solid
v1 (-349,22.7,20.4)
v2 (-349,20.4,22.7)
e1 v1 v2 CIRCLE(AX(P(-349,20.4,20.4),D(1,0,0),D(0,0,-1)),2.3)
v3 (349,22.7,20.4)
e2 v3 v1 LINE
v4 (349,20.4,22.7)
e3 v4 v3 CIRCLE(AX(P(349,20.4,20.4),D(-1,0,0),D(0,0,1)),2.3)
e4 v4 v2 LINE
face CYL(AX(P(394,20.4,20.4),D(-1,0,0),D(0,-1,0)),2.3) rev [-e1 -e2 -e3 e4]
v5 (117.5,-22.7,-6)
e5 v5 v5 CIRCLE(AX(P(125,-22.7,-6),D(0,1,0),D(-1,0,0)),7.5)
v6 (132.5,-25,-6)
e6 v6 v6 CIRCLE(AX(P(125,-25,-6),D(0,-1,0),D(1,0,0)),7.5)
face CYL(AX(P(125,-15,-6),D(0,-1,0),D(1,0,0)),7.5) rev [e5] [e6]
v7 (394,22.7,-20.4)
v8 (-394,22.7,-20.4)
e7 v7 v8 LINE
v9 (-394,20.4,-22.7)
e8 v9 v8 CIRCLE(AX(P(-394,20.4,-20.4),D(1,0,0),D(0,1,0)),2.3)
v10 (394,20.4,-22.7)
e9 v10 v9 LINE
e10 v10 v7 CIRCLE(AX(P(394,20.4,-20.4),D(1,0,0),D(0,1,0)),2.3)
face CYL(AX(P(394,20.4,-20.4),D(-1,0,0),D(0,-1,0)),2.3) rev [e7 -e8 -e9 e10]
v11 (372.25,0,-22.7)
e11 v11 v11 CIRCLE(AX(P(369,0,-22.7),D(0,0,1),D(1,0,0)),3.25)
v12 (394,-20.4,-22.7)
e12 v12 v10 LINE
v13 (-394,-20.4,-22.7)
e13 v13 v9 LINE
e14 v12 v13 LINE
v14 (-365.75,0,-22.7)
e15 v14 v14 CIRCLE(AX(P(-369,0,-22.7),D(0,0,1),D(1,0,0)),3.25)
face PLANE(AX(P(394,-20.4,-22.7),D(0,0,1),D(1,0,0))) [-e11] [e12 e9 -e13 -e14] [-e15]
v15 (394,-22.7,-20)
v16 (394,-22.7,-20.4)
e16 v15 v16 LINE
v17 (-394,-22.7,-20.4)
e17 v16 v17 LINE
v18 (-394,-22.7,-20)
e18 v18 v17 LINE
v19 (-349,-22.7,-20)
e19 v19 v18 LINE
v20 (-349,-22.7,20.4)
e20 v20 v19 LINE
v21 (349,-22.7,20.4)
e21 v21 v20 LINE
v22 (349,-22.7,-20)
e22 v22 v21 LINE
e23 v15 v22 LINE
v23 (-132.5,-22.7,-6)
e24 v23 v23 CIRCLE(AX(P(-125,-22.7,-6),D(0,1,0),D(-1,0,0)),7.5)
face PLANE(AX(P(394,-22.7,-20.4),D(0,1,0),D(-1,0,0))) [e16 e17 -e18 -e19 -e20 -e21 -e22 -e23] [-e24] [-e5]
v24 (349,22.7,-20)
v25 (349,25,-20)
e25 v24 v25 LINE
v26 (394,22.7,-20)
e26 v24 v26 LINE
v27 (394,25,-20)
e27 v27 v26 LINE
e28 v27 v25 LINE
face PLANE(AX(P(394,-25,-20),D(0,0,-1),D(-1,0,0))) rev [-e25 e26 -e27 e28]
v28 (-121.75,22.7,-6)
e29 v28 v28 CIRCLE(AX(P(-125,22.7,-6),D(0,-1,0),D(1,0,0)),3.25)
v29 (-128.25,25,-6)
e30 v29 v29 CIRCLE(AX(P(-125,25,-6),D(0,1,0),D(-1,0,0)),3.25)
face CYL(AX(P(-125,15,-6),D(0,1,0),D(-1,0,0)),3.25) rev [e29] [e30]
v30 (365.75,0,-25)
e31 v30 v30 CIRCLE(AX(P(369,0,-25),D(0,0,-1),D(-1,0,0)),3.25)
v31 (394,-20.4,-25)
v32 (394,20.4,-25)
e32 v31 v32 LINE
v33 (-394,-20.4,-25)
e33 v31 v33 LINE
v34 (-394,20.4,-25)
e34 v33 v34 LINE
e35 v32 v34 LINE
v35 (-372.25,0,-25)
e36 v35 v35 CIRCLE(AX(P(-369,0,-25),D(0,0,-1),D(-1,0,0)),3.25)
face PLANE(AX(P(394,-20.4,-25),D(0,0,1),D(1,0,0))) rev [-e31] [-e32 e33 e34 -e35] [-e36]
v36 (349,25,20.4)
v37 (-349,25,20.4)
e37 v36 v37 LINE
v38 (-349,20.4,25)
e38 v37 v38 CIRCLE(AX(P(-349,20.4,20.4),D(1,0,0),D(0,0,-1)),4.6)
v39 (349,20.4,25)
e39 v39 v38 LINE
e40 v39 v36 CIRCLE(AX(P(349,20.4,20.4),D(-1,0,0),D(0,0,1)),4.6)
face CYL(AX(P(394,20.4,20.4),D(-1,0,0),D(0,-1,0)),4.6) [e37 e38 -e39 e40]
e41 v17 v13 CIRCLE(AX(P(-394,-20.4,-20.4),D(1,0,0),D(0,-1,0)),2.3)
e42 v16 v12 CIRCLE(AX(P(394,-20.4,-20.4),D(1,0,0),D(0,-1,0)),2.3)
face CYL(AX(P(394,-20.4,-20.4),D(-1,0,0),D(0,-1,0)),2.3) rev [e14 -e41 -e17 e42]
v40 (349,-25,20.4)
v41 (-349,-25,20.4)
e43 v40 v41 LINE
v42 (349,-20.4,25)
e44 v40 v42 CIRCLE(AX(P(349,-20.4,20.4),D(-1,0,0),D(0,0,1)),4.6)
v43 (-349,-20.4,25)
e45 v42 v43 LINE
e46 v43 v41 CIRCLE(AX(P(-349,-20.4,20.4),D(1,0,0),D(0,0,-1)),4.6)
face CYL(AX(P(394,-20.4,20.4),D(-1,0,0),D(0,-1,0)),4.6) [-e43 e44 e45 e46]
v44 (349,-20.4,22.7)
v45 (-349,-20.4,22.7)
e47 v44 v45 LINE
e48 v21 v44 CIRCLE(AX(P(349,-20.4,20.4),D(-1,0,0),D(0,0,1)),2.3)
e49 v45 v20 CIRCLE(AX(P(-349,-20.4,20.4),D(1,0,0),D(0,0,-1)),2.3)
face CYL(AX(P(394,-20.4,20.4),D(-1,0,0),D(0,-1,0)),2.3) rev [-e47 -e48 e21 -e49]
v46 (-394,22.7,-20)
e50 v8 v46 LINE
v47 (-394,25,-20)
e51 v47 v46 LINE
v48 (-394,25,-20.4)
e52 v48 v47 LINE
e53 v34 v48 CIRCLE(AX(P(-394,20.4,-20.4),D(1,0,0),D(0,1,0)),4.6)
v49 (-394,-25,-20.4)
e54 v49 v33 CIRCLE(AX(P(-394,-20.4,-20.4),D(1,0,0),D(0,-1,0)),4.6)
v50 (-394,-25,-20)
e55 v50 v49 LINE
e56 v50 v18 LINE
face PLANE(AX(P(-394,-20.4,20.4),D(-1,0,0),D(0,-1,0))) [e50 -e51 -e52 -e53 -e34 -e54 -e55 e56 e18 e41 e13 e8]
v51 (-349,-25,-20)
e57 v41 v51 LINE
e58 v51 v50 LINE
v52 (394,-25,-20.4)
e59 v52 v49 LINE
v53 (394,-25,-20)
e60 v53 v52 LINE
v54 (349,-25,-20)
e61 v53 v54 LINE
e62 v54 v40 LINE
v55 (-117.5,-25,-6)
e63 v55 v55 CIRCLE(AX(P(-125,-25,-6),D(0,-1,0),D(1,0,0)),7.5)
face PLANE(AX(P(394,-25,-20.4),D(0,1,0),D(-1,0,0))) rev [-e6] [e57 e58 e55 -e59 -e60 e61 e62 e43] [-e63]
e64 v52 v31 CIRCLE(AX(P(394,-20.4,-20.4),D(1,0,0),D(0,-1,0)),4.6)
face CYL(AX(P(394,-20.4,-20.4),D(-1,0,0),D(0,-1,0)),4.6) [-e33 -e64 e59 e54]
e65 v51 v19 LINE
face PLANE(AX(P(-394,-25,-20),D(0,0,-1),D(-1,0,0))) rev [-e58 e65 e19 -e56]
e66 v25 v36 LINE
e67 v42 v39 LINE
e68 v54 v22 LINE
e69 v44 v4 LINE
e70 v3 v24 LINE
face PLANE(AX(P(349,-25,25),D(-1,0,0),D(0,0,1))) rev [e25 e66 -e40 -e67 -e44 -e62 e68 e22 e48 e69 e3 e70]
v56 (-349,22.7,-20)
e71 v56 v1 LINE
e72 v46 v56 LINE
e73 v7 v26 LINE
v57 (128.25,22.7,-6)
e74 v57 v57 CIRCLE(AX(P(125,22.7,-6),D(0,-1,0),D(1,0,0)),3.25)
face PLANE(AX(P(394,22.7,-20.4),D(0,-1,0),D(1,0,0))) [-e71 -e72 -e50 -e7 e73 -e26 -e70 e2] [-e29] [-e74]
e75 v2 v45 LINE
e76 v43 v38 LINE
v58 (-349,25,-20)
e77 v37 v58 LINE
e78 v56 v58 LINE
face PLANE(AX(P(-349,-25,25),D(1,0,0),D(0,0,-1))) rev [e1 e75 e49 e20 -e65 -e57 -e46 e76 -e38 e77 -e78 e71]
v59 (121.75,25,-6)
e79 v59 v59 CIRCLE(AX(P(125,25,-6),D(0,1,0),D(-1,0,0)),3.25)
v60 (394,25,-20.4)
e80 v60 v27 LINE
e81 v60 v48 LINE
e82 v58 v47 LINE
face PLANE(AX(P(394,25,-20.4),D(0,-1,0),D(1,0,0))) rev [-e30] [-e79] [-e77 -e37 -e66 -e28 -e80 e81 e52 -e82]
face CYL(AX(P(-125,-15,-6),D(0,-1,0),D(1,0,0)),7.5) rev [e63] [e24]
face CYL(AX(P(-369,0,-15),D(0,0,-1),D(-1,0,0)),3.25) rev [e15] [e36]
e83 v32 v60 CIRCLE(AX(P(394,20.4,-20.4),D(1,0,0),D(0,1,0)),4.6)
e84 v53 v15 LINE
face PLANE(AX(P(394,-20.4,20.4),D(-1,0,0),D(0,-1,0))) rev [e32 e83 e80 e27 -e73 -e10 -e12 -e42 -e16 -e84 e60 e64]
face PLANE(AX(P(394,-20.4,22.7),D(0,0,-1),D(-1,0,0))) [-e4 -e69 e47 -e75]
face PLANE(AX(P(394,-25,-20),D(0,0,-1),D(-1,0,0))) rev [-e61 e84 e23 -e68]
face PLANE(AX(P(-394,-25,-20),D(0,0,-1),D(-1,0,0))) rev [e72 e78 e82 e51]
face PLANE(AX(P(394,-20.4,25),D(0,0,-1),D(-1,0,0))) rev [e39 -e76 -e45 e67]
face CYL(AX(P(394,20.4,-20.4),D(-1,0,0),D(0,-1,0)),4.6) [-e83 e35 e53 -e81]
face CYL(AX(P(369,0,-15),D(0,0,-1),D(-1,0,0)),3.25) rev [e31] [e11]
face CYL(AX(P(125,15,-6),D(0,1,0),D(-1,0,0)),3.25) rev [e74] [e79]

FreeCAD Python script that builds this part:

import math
import FreeCAD as App
import Part
import Sketcher

V = App.Vector

doc = App.newDocument("Part")
body = doc.addObject("PartDesign::Body", "Body")

sketch1 = doc.addObject("Sketcher::SketchObject", "Sketch")
body.addObject(sketch1)
sketch1.AttachmentSupport = (doc.YZ_Plane, [""])
sketch1.MapMode = "FlatFace"
sketch1.AttachmentOffset = App.Placement(V(0, 0, -394), App.Rotation())
sketch1.addGeometry(Part.LineSegment(V(-20.4, -25, 0), V(20.4, -25, 0)), False)
sketch1.addGeometry(Part.ArcOfCircle(Part.Circle(V(20.4, -20.4, 0), V(0, 0, 1), 4.6), math.radians(-90), math.radians(0)), False)
sketch1.addGeometry(Part.LineSegment(V(25, -20.4, 0), V(25, 20.4, 0)), False)
sketch1.addGeometry(Part.ArcOfCircle(Part.Circle(V(20.4, 20.4, 0), V(0, 0, 1), 4.6), math.radians(0), math.radians(90)), False)
sketch1.addGeometry(Part.LineSegment(V(20.4, 25, 0), V(-20.4, 25, 0)), False)
sketch1.addGeometry(Part.ArcOfCircle(Part.Circle(V(-20.4, 20.4, 0), V(0, 0, 1), 4.6), math.radians(90), math.radians(180)), False)
sketch1.addGeometry(Part.LineSegment(V(-25, 20.4, 0), V(-25, -20.4, 0)), False)
sketch1.addGeometry(Part.ArcOfCircle(Part.Circle(V(-20.4, -20.4, 0), V(0, 0, 1), 4.6), math.radians(-180), math.radians(-90)), False)
sketch1.addGeometry(Part.ArcOfCircle(Part.Circle(V(-20.4, 20.4, 0), V(0, 0, 1), 2.3), math.radians(90), math.radians(180)), False)
sketch1.addGeometry(Part.LineSegment(V(-20.4, 22.7, 0), V(20.4, 22.7, 0)), False)
sketch1.addGeometry(Part.ArcOfCircle(Part.Circle(V(20.4, 20.4, 0), V(0, 0, 1), 2.3), math.radians(0), math.radians(90)), False)
sketch1.addGeometry(Part.LineSegment(V(22.7, 20.4, 0), V(22.7, -20.4, 0)), False)
sketch1.addGeometry(Part.ArcOfCircle(Part.Circle(V(20.4, -20.4, 0), V(0, 0, 1), 2.3), math.radians(-90), math.radians(0)), False)
sketch1.addGeometry(Part.LineSegment(V(20.4, -22.7, 0), V(-20.4, -22.7, 0)), False)
sketch1.addGeometry(Part.ArcOfCircle(Part.Circle(V(-20.4, -20.4, 0), V(0, 0, 1), 2.3), math.radians(180), math.radians(270)), False)
sketch1.addGeometry(Part.LineSegment(V(-22.7, -20.4, 0), V(-22.7, 20.4, 0)), False)
sketch1.addConstraint(Sketcher.Constraint("Tangent", 0, 2, 1, 1))
sketch1.addConstraint(Sketcher.Constraint("Tangent", 1, 2, 2, 1))
sketch1.addConstraint(Sketcher.Constraint("Tangent", 2, 2, 3, 1))
sketch1.addConstraint(Sketcher.Constraint("Tangent", 3, 2, 4, 1))
sketch1.addConstraint(Sketcher.Constraint("Tangent", 4, 2, 5, 1))
sketch1.addConstraint(Sketcher.Constraint("Tangent", 5, 2, 6, 1))
sketch1.addConstraint(Sketcher.Constraint("Tangent", 6, 2, 7, 1))
sketch1.addConstraint(Sketcher.Constraint("Tangent", 7, 2, 0, 1))
sketch1.addConstraint(Sketcher.Constraint("Tangent", 8, 1, 9, 1))
sketch1.addConstraint(Sketcher.Constraint("Tangent", 9, 2, 10, 2))
sketch1.addConstraint(Sketcher.Constraint("Tangent", 10, 1, 11, 1))
sketch1.addConstraint(Sketcher.Constraint("Tangent", 11, 2, 12, 2))
sketch1.addConstraint(Sketcher.Constraint("Tangent", 12, 1, 13, 1))
sketch1.addConstraint(Sketcher.Constraint("Tangent", 13, 2, 14, 2))
sketch1.addConstraint(Sketcher.Constraint("Tangent", 14, 1, 15, 1))
sketch1.addConstraint(Sketcher.Constraint("Tangent", 15, 2, 8, 2))
sketch1.addConstraint(Sketcher.Constraint("Horizontal", 0))
sketch1.addConstraint(Sketcher.Constraint("Vertical", 2))
sketch1.addConstraint(Sketcher.Constraint("Horizontal", 4))
sketch1.addConstraint(Sketcher.Constraint("Vertical", 6))
sketch1.addConstraint(Sketcher.Constraint("Horizontal", 9))
sketch1.addConstraint(Sketcher.Constraint("Vertical", 11))
sketch1.addConstraint(Sketcher.Constraint("Horizontal", 13))
sketch1.addConstraint(Sketcher.Constraint("Vertical", 15))
sketch1.addConstraint(Sketcher.Constraint("Coincident", 8, 3, 5, 3))
sketch1.addConstraint(Sketcher.Constraint("Coincident", 10, 3, 3, 3))
sketch1.addConstraint(Sketcher.Constraint("Coincident", 12, 3, 1, 3))
sketch1.addConstraint(Sketcher.Constraint("Equal", 1, 3))
sketch1.addConstraint(Sketcher.Constraint("Equal", 3, 5))
sketch1.addConstraint(Sketcher.Constraint("Equal", 5, 7))
sketch1.addConstraint(Sketcher.Constraint("Equal", 12, 14))
sketch1.addConstraint(Sketcher.Constraint("Symmetric", 1, 3, 5, 3, -1, 1))
sketch1.addConstraint(Sketcher.Constraint("Equal", 13, 2))
sketch1.addConstraint(Sketcher.Constraint("Radius", 1, 4.6))
sketch1.addConstraint(Sketcher.Constraint("Radius", 8, 2.3))
sketch1.addConstraint(Sketcher.Constraint("DistanceX", 0, 1, 0, 2, 40.8))
pad1 = doc.addObject("PartDesign::Pad", "Pad")
body.addObject(pad1)
pad1.Profile = sketch1
pad1.Length = 788

sketch2 = doc.addObject("Sketcher::SketchObject", "Sketch001")
body.addObject(sketch2)
sketch2.AttachmentSupport = (doc.XZ_Plane, [""])
sketch2.MapMode = "FlatFace"
sketch2.addGeometry(Part.LineSegment(V(-394, -20, 0), V(-394, 25, 0)), False)
sketch2.addGeometry(Part.LineSegment(V(-394, 25, 0), V(-349, 25, 0)), False)
sketch2.addGeometry(Part.LineSegment(V(-349, 25, 0), V(-349, -20, 0)), False)
sketch2.addGeometry(Part.LineSegment(V(-349, -20, 0), V(-394, -20, 0)), False)
sketch2.addGeometry(Part.LineSegment(V(349, -20, 0), V(349, 25, 0)), False)
sketch2.addGeometry(Part.LineSegment(V(349, 25, 0), V(394, 25, 0)), False)
sketch2.addGeometry(Part.LineSegment(V(394, 25, 0), V(394, -20, 0)), False)
sketch2.addGeometry(Part.LineSegment(V(394, -20, 0), V(349, -20, 0)), False)
sketch2.addConstraint(Sketcher.Constraint("Coincident", 0, 2, 1, 1))
sketch2.addConstraint(Sketcher.Constraint("Coincident", 1, 2, 2, 1))
sketch2.addConstraint(Sketcher.Constraint("Coincident", 2, 2, 3, 1))
sketch2.addConstraint(Sketcher.Constraint("Coincident", 3, 2, 0, 1))
sketch2.addConstraint(Sketcher.Constraint("Coincident", 4, 2, 5, 1))
sketch2.addConstraint(Sketcher.Constraint("Coincident", 5, 2, 6, 1))
sketch2.addConstraint(Sketcher.Constraint("Coincident", 6, 2, 7, 1))
sketch2.addConstraint(Sketcher.Constraint("Coincident", 7, 2, 4, 1))
sketch2.addConstraint(Sketcher.Constraint("Vertical", 0))
sketch2.addConstraint(Sketcher.Constraint("Horizontal", 1))
sketch2.addConstraint(Sketcher.Constraint("Vertical", 2))
sketch2.addConstraint(Sketcher.Constraint("Horizontal", 3))
sketch2.addConstraint(Sketcher.Constraint("Vertical", 4))
sketch2.addConstraint(Sketcher.Constraint("Horizontal", 5))
sketch2.addConstraint(Sketcher.Constraint("Vertical", 6))
sketch2.addConstraint(Sketcher.Constraint("Horizontal", 7))
sketch2.addConstraint(Sketcher.Constraint("Symmetric", 1, 2, 4, 2, -2))
sketch2.addConstraint(Sketcher.Constraint("Symmetric", 3, 2, 6, 2, -2))
sketch2.addConstraint(Sketcher.Constraint("Equal", 7, 0))
sketch2.addConstraint(Sketcher.Constraint("DistanceX", 1, 1, 1, 2, 45.0))
sketch2.addConstraint(Sketcher.Constraint("DistanceX", 0, 2, -1, 1, 394.0))
sketch2.addConstraint(Sketcher.Constraint("DistanceY", -1, 1, 0, 2, 25.0))
pocket1 = doc.addObject("PartDesign::Pocket", "Pocket")
body.addObject(pocket1)
pocket1.Profile = sketch2
pocket1.Type = "ThroughAll"
pocket1.Midplane = True

sketch3 = doc.addObject("Sketcher::SketchObject", "Sketch002")
body.addObject(sketch3)
sketch3.AttachmentSupport = (doc.XY_Plane, [""])
sketch3.MapMode = "FlatFace"
sketch3.AttachmentOffset = App.Placement(V(0, 0, -25), App.Rotation())
sketch3.addGeometry(Part.Circle(V(369, 0, 0), V(0, 0, 1), 3.2), False)
sketch3.addGeometry(Part.Circle(V(-369, 0, 0), V(0, 0, 1), 3.2), False)
sketch3.addConstraint(Sketcher.Constraint("Equal", 0, 1))
sketch3.addConstraint(Sketcher.Constraint("Symmetric", 0, 3, 1, 3, -1, 1))
sketch3.addConstraint(Sketcher.Constraint("PointOnObject", 0, 3, -1))
sketch3.addConstraint(Sketcher.Constraint("Diameter", 0, 6.5))
sketch3.addConstraint(Sketcher.Constraint("DistanceX", -1, 1, 0, 3, 369.0))
pocket2 = doc.addObject("PartDesign::Pocket", "Pocket001")
body.addObject(pocket2)
pocket2.Profile = sketch3
pocket2.Length = 10
pocket2.Reversed = True

sketch4 = doc.addObject("Sketcher::SketchObject", "Sketch003")
body.addObject(sketch4)
sketch4.AttachmentSupport = (doc.XZ_Plane, [""])
sketch4.MapMode = "FlatFace"
sketch4.AttachmentOffset = App.Placement(V(0, 0, -25), App.Rotation())
sketch4.addGeometry(Part.Circle(V(-125, -6, 0), V(0, 0, 1), 3.2), False)
sketch4.addGeometry(Part.Circle(V(125, -6, 0), V(0, 0, 1), 3.2), False)
sketch4.addConstraint(Sketcher.Constraint("Equal", 0, 1))
sketch4.addConstraint(Sketcher.Constraint("Symmetric", 0, 3, 1, 3, -2))
sketch4.addConstraint(Sketcher.Constraint("Diameter", 0, 6.5))
sketch4.addConstraint(Sketcher.Constraint("DistanceX", 0, 3, -1, 1, 125.0))
sketch4.addConstraint(Sketcher.Constraint("DistanceY", 0, 3, -1, 1, 6.0))
pocket3 = doc.addObject("PartDesign::Pocket", "Pocket002")
body.addObject(pocket3)
pocket3.Profile = sketch4
pocket3.Length = 10
pocket3.Reversed = True

sketch5 = doc.addObject("Sketcher::SketchObject", "Sketch004")
body.addObject(sketch5)
sketch5.AttachmentSupport = (doc.XZ_Plane, [""])
sketch5.MapMode = "FlatFace"
sketch5.AttachmentOffset = App.Placement(V(0, 0, 25), App.Rotation())
sketch5.addGeometry(Part.Circle(V(-125, -6, 0), V(0, 0, 1), 8), False)
sketch5.addGeometry(Part.Circle(V(125, -6, 0), V(0, 0, 1), 8), False)
sketch5.addConstraint(Sketcher.Constraint("Equal", 0, 1))
sketch5.addConstraint(Sketcher.Constraint("Symmetric", 0, 3, 1, 3, -2))
sketch5.addConstraint(Sketcher.Constraint("Diameter", 0, 15.0))
sketch5.addConstraint(Sketcher.Constraint("DistanceX", 0, 3, -1, 1, 125.0))
sketch5.addConstraint(Sketcher.Constraint("DistanceY", 0, 3, -1, 1, 6.0))
pocket4 = doc.addObject("PartDesign::Pocket", "Pocket003")
body.addObject(pocket4)
pocket4.Profile = sketch5
pocket4.Length = 10

doc.recompute()
